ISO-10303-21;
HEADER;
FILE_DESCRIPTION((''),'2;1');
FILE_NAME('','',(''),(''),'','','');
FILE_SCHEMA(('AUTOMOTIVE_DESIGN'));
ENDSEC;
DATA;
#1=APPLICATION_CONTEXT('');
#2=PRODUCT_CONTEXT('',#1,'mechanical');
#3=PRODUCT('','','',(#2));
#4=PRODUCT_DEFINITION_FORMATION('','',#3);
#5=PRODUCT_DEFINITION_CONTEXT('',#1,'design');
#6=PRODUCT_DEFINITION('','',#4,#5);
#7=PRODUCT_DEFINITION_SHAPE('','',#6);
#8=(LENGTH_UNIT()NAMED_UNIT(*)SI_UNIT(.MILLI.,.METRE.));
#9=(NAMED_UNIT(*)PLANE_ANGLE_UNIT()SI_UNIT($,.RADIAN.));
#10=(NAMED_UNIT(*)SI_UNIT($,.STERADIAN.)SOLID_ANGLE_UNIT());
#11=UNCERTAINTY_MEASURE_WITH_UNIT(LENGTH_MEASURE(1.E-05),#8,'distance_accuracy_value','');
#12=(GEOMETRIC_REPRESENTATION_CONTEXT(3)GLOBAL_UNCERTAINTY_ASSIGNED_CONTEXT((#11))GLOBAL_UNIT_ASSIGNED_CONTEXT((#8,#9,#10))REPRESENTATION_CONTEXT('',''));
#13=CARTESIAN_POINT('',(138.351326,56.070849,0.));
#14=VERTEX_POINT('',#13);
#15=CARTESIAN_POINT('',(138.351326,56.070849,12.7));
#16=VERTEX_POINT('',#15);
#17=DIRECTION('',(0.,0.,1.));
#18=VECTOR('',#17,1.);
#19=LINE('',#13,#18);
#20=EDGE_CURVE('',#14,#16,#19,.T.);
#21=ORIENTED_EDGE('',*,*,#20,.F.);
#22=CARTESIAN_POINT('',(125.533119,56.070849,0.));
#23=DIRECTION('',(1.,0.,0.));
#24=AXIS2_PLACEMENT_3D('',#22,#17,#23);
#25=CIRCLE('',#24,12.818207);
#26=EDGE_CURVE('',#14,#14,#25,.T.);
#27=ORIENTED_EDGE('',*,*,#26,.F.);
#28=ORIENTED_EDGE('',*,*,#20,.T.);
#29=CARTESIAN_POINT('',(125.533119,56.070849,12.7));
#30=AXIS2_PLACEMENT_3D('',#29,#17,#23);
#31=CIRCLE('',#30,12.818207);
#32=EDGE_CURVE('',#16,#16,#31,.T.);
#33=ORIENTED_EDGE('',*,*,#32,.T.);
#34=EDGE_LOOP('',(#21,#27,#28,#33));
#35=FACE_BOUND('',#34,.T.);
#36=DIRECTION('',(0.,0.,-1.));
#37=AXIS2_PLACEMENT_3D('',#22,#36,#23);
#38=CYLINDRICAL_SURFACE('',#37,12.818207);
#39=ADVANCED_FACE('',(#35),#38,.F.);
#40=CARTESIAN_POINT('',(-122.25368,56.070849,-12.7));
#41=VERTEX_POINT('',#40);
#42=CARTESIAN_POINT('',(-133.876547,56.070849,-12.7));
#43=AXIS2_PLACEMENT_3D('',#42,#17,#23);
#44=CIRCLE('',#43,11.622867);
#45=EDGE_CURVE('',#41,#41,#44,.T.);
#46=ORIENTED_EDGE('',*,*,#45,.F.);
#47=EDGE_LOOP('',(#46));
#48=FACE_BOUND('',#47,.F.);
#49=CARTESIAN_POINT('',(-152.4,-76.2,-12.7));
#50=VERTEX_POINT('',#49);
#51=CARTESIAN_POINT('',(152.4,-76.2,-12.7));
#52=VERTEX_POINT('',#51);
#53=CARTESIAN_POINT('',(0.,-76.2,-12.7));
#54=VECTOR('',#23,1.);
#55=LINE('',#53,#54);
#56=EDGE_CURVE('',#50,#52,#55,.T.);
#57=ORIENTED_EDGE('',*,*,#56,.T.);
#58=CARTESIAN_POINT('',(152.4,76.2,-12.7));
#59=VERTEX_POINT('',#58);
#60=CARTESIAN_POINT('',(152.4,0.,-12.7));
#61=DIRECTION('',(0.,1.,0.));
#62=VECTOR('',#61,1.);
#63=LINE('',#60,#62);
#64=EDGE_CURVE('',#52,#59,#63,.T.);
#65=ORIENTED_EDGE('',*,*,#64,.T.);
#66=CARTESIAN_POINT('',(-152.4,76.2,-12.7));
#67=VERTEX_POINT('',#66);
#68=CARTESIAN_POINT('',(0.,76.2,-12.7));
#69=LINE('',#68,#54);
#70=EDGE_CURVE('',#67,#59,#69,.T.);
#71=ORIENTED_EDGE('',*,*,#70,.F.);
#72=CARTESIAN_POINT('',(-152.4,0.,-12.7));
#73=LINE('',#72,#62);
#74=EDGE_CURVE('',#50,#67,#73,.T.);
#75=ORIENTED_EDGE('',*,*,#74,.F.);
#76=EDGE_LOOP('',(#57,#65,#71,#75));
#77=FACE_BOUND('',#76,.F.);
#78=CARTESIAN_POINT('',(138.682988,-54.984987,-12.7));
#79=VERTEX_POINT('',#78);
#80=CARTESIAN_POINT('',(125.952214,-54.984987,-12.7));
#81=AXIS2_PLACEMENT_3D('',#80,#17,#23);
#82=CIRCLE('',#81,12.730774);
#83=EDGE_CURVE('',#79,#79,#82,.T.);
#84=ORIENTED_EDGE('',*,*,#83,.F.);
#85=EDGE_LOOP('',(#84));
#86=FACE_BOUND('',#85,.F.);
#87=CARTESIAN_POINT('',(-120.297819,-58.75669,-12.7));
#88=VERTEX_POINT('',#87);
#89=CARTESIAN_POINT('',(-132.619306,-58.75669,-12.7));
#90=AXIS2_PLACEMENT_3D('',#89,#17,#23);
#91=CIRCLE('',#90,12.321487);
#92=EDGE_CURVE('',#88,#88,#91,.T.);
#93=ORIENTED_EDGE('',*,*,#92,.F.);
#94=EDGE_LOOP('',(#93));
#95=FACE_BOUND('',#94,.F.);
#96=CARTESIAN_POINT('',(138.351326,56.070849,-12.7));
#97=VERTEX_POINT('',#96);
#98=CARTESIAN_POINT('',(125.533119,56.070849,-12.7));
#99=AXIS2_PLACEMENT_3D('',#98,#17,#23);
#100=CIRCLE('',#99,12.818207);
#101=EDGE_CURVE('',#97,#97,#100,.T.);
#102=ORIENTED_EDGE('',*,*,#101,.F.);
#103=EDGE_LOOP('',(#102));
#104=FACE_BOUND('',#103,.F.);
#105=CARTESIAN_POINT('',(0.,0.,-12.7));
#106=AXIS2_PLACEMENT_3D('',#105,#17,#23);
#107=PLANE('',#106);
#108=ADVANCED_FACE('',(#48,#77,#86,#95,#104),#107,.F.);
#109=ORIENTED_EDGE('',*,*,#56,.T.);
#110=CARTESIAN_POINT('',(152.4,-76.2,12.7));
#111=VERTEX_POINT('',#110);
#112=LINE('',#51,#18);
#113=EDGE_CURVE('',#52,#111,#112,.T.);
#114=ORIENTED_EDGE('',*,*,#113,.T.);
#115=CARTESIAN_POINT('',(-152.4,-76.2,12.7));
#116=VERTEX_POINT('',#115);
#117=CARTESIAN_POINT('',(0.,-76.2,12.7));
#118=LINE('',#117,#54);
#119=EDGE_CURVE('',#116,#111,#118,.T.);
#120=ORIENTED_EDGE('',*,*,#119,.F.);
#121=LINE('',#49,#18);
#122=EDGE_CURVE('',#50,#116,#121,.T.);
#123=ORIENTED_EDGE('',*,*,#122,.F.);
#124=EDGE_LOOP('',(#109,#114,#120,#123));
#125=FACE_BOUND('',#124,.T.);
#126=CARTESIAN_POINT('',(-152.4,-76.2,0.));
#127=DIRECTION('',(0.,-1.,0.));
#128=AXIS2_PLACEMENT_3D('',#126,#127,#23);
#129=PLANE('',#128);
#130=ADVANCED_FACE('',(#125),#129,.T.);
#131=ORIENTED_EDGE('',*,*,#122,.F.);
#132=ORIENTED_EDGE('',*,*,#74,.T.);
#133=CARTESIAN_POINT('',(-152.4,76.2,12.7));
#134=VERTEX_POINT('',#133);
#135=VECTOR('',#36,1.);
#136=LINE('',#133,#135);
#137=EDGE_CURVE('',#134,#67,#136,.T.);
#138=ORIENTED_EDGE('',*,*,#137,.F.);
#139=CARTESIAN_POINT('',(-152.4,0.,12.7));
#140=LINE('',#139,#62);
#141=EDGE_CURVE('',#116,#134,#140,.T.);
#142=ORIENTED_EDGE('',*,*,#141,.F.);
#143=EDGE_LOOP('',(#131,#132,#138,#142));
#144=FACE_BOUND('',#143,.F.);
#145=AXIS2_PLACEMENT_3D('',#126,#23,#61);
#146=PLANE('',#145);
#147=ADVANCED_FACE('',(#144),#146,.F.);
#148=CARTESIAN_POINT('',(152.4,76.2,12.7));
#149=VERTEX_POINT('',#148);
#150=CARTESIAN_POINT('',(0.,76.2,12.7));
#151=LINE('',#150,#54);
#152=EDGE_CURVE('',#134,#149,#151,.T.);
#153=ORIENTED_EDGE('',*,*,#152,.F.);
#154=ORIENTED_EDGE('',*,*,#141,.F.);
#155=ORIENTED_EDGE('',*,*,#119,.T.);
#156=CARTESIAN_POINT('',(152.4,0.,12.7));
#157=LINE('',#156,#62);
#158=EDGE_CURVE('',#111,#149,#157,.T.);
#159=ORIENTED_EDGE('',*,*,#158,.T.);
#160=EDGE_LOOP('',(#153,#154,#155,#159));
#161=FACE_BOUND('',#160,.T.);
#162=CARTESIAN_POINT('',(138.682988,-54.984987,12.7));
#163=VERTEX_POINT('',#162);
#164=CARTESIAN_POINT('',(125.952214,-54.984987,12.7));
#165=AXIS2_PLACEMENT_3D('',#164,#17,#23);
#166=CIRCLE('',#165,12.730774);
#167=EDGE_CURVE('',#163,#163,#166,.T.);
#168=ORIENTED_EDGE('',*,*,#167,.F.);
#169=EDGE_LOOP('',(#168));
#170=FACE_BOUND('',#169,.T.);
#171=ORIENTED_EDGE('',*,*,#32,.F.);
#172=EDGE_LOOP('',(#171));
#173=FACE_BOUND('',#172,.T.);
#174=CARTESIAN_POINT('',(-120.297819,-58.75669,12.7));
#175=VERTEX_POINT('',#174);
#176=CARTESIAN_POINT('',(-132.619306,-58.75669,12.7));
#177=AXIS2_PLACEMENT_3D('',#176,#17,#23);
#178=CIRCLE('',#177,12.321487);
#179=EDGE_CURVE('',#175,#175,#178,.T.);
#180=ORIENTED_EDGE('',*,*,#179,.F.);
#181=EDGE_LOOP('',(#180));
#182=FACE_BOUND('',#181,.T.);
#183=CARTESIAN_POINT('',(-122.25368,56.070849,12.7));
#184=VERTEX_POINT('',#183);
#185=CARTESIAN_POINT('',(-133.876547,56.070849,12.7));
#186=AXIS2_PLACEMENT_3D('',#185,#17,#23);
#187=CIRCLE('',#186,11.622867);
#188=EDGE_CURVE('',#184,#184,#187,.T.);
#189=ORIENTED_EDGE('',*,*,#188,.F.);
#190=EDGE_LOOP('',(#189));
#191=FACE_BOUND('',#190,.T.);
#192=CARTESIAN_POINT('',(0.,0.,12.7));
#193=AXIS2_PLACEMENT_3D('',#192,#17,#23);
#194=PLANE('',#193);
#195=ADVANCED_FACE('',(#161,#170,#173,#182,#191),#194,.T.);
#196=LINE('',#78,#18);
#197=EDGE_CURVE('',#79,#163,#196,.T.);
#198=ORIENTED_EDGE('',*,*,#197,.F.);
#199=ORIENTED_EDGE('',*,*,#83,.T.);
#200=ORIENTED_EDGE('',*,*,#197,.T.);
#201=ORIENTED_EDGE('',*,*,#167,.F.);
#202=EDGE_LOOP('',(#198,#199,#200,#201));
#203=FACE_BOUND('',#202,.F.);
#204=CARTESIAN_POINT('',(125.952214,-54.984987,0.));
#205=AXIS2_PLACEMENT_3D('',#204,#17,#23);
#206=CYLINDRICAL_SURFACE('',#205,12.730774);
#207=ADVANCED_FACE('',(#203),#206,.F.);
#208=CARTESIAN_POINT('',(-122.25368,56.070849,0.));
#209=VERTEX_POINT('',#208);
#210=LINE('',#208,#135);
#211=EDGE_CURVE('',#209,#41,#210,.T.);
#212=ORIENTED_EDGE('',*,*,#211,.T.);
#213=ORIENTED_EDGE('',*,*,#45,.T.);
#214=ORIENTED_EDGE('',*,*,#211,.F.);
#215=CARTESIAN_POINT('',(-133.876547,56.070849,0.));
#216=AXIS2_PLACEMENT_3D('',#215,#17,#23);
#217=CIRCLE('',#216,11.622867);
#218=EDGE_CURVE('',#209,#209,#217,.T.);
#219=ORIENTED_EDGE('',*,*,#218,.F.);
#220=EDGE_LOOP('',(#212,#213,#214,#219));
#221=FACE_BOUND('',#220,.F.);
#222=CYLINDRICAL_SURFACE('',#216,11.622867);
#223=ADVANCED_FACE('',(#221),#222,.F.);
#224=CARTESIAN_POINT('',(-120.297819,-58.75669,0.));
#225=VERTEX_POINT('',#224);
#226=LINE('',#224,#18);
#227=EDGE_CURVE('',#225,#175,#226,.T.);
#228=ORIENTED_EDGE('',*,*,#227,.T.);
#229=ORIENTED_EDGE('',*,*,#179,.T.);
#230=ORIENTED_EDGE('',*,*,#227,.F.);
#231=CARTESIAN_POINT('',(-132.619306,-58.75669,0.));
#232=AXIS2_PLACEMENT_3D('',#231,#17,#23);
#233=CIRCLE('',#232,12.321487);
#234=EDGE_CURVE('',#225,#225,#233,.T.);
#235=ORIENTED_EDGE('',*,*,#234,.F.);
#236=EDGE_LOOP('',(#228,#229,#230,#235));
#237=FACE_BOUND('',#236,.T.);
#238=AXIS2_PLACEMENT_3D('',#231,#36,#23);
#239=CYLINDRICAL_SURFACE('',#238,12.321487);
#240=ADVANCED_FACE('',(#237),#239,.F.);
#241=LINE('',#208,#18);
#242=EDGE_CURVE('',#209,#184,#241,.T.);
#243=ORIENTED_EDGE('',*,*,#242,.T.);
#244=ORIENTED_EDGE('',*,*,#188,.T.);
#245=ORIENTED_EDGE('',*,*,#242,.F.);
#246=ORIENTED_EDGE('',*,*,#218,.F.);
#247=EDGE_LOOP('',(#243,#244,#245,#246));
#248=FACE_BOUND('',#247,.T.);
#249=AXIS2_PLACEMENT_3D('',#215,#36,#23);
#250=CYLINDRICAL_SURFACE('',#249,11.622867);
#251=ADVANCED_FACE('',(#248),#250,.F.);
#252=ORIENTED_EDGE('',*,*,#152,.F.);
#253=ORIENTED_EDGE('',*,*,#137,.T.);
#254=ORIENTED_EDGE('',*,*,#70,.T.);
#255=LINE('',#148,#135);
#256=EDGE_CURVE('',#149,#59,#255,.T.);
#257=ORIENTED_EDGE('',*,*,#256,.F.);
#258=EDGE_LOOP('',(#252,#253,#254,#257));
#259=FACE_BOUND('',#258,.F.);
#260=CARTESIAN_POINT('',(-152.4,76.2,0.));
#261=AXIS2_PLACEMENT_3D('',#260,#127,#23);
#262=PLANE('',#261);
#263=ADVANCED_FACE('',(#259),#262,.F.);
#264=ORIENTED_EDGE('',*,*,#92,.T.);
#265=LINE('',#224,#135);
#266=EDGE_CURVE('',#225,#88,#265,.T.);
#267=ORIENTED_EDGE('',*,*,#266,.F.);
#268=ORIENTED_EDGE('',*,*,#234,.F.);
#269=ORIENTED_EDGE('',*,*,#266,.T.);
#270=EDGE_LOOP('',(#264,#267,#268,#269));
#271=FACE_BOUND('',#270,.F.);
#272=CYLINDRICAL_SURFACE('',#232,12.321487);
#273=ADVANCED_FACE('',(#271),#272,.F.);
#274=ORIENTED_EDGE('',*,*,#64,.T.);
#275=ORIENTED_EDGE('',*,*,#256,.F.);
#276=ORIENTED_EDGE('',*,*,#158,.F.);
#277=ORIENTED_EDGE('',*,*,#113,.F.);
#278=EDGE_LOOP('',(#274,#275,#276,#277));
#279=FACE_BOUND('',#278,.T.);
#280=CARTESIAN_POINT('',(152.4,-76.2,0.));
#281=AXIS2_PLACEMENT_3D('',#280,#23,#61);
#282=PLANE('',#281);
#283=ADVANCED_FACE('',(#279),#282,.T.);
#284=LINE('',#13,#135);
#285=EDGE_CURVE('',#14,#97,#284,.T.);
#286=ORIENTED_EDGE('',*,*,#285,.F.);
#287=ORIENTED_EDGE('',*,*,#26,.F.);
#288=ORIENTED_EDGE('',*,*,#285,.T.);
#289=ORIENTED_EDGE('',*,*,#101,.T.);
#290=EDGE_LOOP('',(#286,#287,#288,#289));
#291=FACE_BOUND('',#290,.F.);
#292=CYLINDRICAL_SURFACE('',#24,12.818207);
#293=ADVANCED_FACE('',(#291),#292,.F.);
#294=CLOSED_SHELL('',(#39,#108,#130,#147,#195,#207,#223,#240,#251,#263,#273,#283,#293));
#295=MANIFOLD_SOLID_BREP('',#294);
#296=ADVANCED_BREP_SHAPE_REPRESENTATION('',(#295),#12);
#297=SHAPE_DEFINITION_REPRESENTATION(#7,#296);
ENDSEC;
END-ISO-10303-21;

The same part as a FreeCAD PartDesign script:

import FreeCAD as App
import Part
import Sketcher
from FreeCAD import Vector
Q = App.Units.Quantity


def add_polygon(sketch, points):
    """Adds a closed chain of lines whose ends are joined by coincident constraints."""
    first, n = sketch.GeometryCount, len(points)
    for a, b in zip(points, points[1:] + points[:1]):
        sketch.addGeometry(Part.LineSegment(App.Vector(*a, 0), App.Vector(*b, 0)), False)
    for i in range(n):
        sketch.addConstraint(Sketcher.Constraint("Coincident", first + i, 2, first + (i + 1) % n, 1))

doc = App.newDocument("Part")
params = doc.addObject("Spreadsheet::Sheet", "Params")
for row, (alias, value) in enumerate([
    ("sketch1_width", "12 in"),
    ("sketch1_height", "6 in"),
    ("pad1_length", "1 in"),
    ("pocket1_length", "1 in"),
], start=1):
    params.set(f"A{row}", alias)
    params.set(f"B{row}", "=" + value)
    params.setAlias(f"B{row}", alias)

body = doc.addObject("PartDesign::Body", "Body")

sketch1 = body.newObject("Sketcher::SketchObject", "Sketch")
sketch1.AttachmentSupport = (doc.getObject("XY_Plane"), [""])
sketch1.MapMode = "FlatFace"
add_polygon(sketch1, [(-152, 76), (-152, -76), (152, -76), (152, 76)])
sketch1.addConstraint([
    Sketcher.Constraint("Vertical", 0),
    Sketcher.Constraint("Horizontal", 1),
    Sketcher.Constraint("Vertical", 2),
    Sketcher.Constraint("Horizontal", 3),
    Sketcher.Constraint("Symmetric", 0, 2, 2, 2, -1, 1),
    Sketcher.Constraint("DistanceX", 1, 1, 1, 2, Q("12 in")),
    Sketcher.Constraint("DistanceY", 0, 2, 0, 1, Q("6 in")),
])
sketch1.setExpression("Constraints[9]", "Params.sketch1_width")
sketch1.setExpression("Constraints[10]", "Params.sketch1_height")
pad1 = body.newObject("PartDesign::Pad", "Pad")
pad1.Profile = sketch1
pad1.setExpression("Length", "Params.pad1_length")
pad1.Midplane = True

sketch2 = body.newObject("Sketcher::SketchObject", "Sketch001")
sketch2.AttachmentSupport = (doc.getObject("XY_Plane"), [""])
sketch2.MapMode = "FlatFace"
sketch2.addGeometry([
    Part.Circle(Vector(-134, 56, 0), Vector(0, 0, 1), 12),
    Part.Circle(Vector(-133, -59, 0), Vector(0, 0, 1), 12),
    Part.Circle(Vector(126, 56, 0), Vector(0, 0, 1), 13),
    Part.Circle(Vector(126, -55, 0), Vector(0, 0, 1), 13),
], False)
sketch2.addConstraint([
    Sketcher.Constraint("Horizontal", 0, 3, 2, 3),
    Sketcher.Constraint("Diameter", 3, 25.461548),
    Sketcher.Constraint("Diameter", 0, 23.245734),
    Sketcher.Constraint("Diameter", 1, 24.642974),
    Sketcher.Constraint("Diameter", 2, 25.636414),
    Sketcher.Constraint("DistanceX", 2, 3, 3, 3, Q("0.0164998 in")),
    Sketcher.Constraint("DistanceY", -1, 1, 0, 3, 56.070849),
    Sketcher.Constraint("DistanceY", 1, 3, -1, 1, 58.75669),
    Sketcher.Constraint("DistanceX", -1, 1, 2, 3, 125.533119),
    Sketcher.Constraint("DistanceX", 0, 3, 1, 3, 1.257241),
    Sketcher.Constraint("DistanceX", 1, 3, 3, 3, 258.57152),
    Sketcher.Constraint("DistanceY", 3, 3, -1, 1, 54.984987),
])
pocket1 = body.newObject("PartDesign::Pocket", "Pocket")
pocket1.Profile = sketch2
pocket1.setExpression("Length", "Params.pocket1_length")
pocket1.Midplane = True

doc.recompute()
